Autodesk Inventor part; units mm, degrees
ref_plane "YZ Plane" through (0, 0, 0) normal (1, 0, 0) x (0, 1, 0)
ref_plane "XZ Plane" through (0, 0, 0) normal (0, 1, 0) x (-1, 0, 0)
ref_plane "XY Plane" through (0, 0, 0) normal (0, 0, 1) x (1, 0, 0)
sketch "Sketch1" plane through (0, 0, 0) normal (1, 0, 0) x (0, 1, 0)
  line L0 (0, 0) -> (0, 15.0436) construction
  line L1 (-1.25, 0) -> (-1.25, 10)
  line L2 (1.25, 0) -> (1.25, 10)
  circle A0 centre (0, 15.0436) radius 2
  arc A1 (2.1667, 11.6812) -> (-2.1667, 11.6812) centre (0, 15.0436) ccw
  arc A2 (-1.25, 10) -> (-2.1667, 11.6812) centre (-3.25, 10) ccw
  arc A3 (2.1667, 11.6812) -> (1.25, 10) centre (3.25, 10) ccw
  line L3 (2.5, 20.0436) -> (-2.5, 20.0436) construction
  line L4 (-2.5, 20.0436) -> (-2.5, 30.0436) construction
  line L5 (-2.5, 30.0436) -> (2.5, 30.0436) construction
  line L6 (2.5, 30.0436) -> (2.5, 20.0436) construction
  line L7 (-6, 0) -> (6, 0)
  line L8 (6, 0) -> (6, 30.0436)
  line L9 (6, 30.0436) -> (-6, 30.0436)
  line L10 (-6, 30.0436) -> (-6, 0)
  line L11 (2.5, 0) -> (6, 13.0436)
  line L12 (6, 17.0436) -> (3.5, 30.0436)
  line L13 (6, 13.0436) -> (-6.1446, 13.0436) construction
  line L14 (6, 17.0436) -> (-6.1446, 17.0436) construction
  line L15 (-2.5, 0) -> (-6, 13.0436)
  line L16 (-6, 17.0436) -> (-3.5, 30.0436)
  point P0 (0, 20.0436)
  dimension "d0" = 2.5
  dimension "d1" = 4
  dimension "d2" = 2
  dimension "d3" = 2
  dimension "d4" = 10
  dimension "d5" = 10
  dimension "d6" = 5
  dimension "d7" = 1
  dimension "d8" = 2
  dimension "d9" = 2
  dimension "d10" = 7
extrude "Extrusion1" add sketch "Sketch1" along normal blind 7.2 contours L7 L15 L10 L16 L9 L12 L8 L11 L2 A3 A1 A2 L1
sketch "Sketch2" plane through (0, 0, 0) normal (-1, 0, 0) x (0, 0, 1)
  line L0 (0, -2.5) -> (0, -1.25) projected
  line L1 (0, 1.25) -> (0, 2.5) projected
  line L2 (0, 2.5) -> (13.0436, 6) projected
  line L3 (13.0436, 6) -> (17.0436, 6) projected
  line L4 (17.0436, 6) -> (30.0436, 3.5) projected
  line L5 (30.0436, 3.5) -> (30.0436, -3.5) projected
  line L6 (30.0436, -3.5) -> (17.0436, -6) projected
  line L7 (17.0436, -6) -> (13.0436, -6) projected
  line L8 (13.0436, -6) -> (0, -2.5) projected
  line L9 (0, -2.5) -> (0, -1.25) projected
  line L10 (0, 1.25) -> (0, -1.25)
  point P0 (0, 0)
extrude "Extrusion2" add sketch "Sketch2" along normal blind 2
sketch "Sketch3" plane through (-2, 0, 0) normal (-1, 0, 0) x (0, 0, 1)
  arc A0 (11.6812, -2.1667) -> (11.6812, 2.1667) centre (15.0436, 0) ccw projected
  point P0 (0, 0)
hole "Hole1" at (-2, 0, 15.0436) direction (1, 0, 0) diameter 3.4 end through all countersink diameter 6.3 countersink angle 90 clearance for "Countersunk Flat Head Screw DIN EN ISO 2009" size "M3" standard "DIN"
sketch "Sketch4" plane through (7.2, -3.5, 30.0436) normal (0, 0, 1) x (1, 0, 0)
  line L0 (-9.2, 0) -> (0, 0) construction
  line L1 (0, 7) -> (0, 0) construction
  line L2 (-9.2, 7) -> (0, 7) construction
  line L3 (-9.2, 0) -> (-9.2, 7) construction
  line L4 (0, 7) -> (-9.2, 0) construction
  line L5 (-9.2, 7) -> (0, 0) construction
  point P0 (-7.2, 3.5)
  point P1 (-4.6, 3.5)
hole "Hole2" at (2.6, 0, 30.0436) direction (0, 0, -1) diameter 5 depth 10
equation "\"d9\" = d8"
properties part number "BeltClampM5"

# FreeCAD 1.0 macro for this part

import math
import FreeCAD as App
import Part
import Sketcher
Q = App.Units.Quantity

doc = App.newDocument("Part")
body = doc.addObject("PartDesign::Body", "Body")

# Sketch on YZ plane
sketch1 = body.newObject("Sketcher::SketchObject", "Sketch")
sketch1.AttachmentSupport = (doc.getObject("YZ_Plane"), [""])
sketch1.MapMode = "FlatFace"
sketch1.addGeometry([
    Part.LineSegment(App.Vector(-2.5, 0, 0), App.Vector(-1.2, 0, 0)),  # 0
    Part.LineSegment(App.Vector(-1.2, 0, 0), App.Vector(-1.2, 10, 0)),  # 1
    Part.ArcOfCircle(Part.Circle(App.Vector(-3.2, 10, 0), App.Vector(0, 0, 1), 2), math.radians(0), math.radians(57)),  # 2
    Part.ArcOfCircle(Part.Circle(App.Vector(0, 15, 0), App.Vector(0, 0, 1), 4), math.radians(-57), math.radians(237)),  # 3
    Part.ArcOfCircle(Part.Circle(App.Vector(3.2, 10, 0), App.Vector(0, 0, 1), 2), math.radians(123), math.radians(180)),  # 4
    Part.LineSegment(App.Vector(1.2, 10, 0), App.Vector(1.2, 0, 0)),  # 5
    Part.LineSegment(App.Vector(1.2, 0, 0), App.Vector(2.5, 0, 0)),  # 6
    Part.LineSegment(App.Vector(2.5, 0, 0), App.Vector(6, 13, 0)),  # 7
    Part.LineSegment(App.Vector(6, 13, 0), App.Vector(6, 17, 0)),  # 8
    Part.LineSegment(App.Vector(6, 17, 0), App.Vector(3.5, 30, 0)),  # 9
    Part.LineSegment(App.Vector(3.5, 30, 0), App.Vector(-3.5, 30, 0)),  # 10
    Part.LineSegment(App.Vector(-3.5, 30, 0), App.Vector(-6, 17, 0)),  # 11
    Part.LineSegment(App.Vector(-6, 17, 0), App.Vector(-6, 13, 0)),  # 12
    Part.LineSegment(App.Vector(-6, 13, 0), App.Vector(-2.5, 0, 0)),  # 13
], False)
sketch1.addConstraint([
    Sketcher.Constraint("Coincident", 0, 2, 1, 1),
    Sketcher.Constraint("Tangent", 1, 2, 2, 1),
    Sketcher.Constraint("Tangent", 2, 2, 3, 2),
    Sketcher.Constraint("Tangent", 3, 1, 4, 1),
    Sketcher.Constraint("Tangent", 4, 2, 5, 1),
    Sketcher.Constraint("Coincident", 5, 2, 6, 1),
    Sketcher.Constraint("Coincident", 6, 2, 7, 1),
    Sketcher.Constraint("Coincident", 7, 2, 8, 1),
    Sketcher.Constraint("Coincident", 8, 2, 9, 1),
    Sketcher.Constraint("Coincident", 9, 2, 10, 1),
    Sketcher.Constraint("Coincident", 10, 2, 11, 1),
    Sketcher.Constraint("Coincident", 11, 2, 12, 1),
    Sketcher.Constraint("Coincident", 12, 2, 13, 1),
    Sketcher.Constraint("Coincident", 13, 2, 0, 1),
    Sketcher.Constraint("Horizontal", 0),
    Sketcher.Constraint("Vertical", 1),
    Sketcher.Constraint("Vertical", 5),
    Sketcher.Constraint("Horizontal", 6),
    Sketcher.Constraint("Vertical", 8),
    Sketcher.Constraint("Horizontal", 10),
    Sketcher.Constraint("Vertical", 12),
    Sketcher.Constraint("Equal", 2, 4),
    Sketcher.Constraint("Symmetric", 0, 2, 5, 2, -1, 1),
    Sketcher.Constraint("Symmetric", 8, 2, 11, 2, -2),
    Sketcher.Constraint("Symmetric", 6, 2, 13, 2, -2),
    Sketcher.Constraint("PointOnObject", 3, 3, -2),
    Sketcher.Constraint("Horizontal", 7, 2, 12, 2),
    Sketcher.Constraint("Equal", 9, 11),
    Sketcher.Constraint("Radius", 2, 2.0),
    Sketcher.Constraint("Radius", 3, 4.0),
    Sketcher.Constraint("DistanceX", 10, 2, 10, 1, 7.0),
    Sketcher.Constraint("DistanceY", 1, 1, 1, 2, 10.0),
    Sketcher.Constraint("DistanceY", 8, 1, 8, 2, 4.0),
    Sketcher.Constraint("DistanceY", 7, 2, 3, 3, 2.0),
    Sketcher.Constraint("DistanceX", 13, 2, 6, 2, 5.0),
    Sketcher.Constraint("DistanceX", 1, 2, 4, 2, 2.5),
    Sketcher.Constraint("DistanceX", 9, 2, 8, 2, 2.5),
    Sketcher.Constraint("DistanceY", 8, 2, 9, 2, 13.0),
])
pad1 = body.newObject("PartDesign::Pad", "Pad")
pad1.Profile = sketch1
pad1.Length = 7.2

# Sketch on YZ plane
sketch2 = body.newObject("Sketcher::SketchObject", "Sketch001")
sketch2.AttachmentSupport = (doc.getObject("YZ_Plane"), [""])
sketch2.MapMode = "FlatFace"
sketch2.addGeometry([
    Part.LineSegment(App.Vector(2.5, 0, 0), App.Vector(-2.5, 0, 0)),  # 0
    Part.LineSegment(App.Vector(-2.5, 0, 0), App.Vector(-6, 13, 0)),  # 1
    Part.LineSegment(App.Vector(-6, 13, 0), App.Vector(-6, 17, 0)),  # 2
    Part.LineSegment(App.Vector(-6, 17, 0), App.Vector(-3.5, 30, 0)),  # 3
    Part.LineSegment(App.Vector(-3.5, 30, 0), App.Vector(3.5, 30, 0)),  # 4
    Part.LineSegment(App.Vector(3.5, 30, 0), App.Vector(6, 17, 0)),  # 5
    Part.LineSegment(App.Vector(6, 17, 0), App.Vector(6, 13, 0)),  # 6
    Part.LineSegment(App.Vector(6, 13, 0), App.Vector(2.5, 0, 0)),  # 7
], False)
sketch2.addConstraint([
    Sketcher.Constraint("Coincident", 0, 2, 1, 1),
    Sketcher.Constraint("Coincident", 1, 2, 2, 1),
    Sketcher.Constraint("Coincident", 2, 2, 3, 1),
    Sketcher.Constraint("Coincident", 3, 2, 4, 1),
    Sketcher.Constraint("Coincident", 4, 2, 5, 1),
    Sketcher.Constraint("Coincident", 5, 2, 6, 1),
    Sketcher.Constraint("Coincident", 6, 2, 7, 1),
    Sketcher.Constraint("Coincident", 7, 2, 0, 1),
    Sketcher.Constraint("Horizontal", 0),
    Sketcher.Constraint("Vertical", 2),
    Sketcher.Constraint("Horizontal", 4),
    Sketcher.Constraint("Vertical", 6),
    Sketcher.Constraint("Symmetric", 0, 2, 7, 2, -1, 1),
    Sketcher.Constraint("Symmetric", 2, 2, 5, 2, -2),
    Sketcher.Constraint("Horizontal", 1, 2, 6, 2),
    Sketcher.Constraint("Equal", 3, 5),
    Sketcher.Constraint("DistanceX", 0, 2, 0, 1, 5.0),
    Sketcher.Constraint("DistanceX", 4, 1, 4, 2, 7.0),
    Sketcher.Constraint("DistanceY", 2, 1, 2, 2, 4.0),
    Sketcher.Constraint("DistanceX", 1, 2, -1, 1, 6.0),
    Sketcher.Constraint("DistanceY", 2, 2, 3, 2, 13.0),
    Sketcher.Constraint("Angle", 1, Q("105.0204 deg")),
])
pad2 = body.newObject("PartDesign::Pad", "Pad001")
pad2.Profile = sketch2
pad2.Length = 2
pad2.Reversed = True

# Sketch on YZ plane
sketch3 = body.newObject("Sketcher::SketchObject", "Sketch002")
sketch3.AttachmentSupport = (doc.getObject("YZ_Plane"), [""])
sketch3.MapMode = "FlatFace"
sketch3.AttachmentOffset = App.Placement(App.Vector(0, 0, -2), App.Rotation())
sketch3.addGeometry(Part.Circle(App.Vector(0, 15, 0), App.Vector(0, 0, 1), 1.7), False)
sketch3.addConstraint([
    Sketcher.Constraint("PointOnObject", 0, 3, -2),
    Sketcher.Constraint("Diameter", 0, 3.4),
    Sketcher.Constraint("DistanceY", -1, 1, 0, 3, 15.0436),
])
doc.recompute()
hole = body.newObject("PartDesign::Hole", "Hole")
hole.Profile = sketch3
hole.ThreadType = "None"
hole.Diameter = 3.4
hole.DepthType = "ThroughAll"
hole.HoleCutType = "Countersink"
hole.HoleCutDiameter = 6.3
hole.HoleCutCountersinkAngle = 90
hole.Reversed = True

# Sketch on XY plane
sketch4 = body.newObject("Sketcher::SketchObject", "Sketch003")
sketch4.AttachmentSupport = (doc.getObject("XY_Plane"), [""])
sketch4.MapMode = "FlatFace"
sketch4.AttachmentOffset = App.Placement(App.Vector(0, 0, 30.0436), App.Rotation())
sketch4.addGeometry(Part.Circle(App.Vector(2.6, 0, 0), App.Vector(0, 0, 1), 2.5), False)
sketch4.addConstraint([
    Sketcher.Constraint("PointOnObject", 0, 3, -1),
    Sketcher.Constraint("Diameter", 0, 5.0),
    Sketcher.Constraint("DistanceX", -1, 1, 0, 3, 2.6),
])
doc.recompute()
hole2 = body.newObject("PartDesign::Hole", "Hole001")
hole2.Profile = sketch4
hole2.ThreadType = "None"
hole2.Diameter = 5
hole2.DepthType = "Dimension"
hole2.Depth = 10
hole2.DrillPoint = "Flat"

doc.recompute()
